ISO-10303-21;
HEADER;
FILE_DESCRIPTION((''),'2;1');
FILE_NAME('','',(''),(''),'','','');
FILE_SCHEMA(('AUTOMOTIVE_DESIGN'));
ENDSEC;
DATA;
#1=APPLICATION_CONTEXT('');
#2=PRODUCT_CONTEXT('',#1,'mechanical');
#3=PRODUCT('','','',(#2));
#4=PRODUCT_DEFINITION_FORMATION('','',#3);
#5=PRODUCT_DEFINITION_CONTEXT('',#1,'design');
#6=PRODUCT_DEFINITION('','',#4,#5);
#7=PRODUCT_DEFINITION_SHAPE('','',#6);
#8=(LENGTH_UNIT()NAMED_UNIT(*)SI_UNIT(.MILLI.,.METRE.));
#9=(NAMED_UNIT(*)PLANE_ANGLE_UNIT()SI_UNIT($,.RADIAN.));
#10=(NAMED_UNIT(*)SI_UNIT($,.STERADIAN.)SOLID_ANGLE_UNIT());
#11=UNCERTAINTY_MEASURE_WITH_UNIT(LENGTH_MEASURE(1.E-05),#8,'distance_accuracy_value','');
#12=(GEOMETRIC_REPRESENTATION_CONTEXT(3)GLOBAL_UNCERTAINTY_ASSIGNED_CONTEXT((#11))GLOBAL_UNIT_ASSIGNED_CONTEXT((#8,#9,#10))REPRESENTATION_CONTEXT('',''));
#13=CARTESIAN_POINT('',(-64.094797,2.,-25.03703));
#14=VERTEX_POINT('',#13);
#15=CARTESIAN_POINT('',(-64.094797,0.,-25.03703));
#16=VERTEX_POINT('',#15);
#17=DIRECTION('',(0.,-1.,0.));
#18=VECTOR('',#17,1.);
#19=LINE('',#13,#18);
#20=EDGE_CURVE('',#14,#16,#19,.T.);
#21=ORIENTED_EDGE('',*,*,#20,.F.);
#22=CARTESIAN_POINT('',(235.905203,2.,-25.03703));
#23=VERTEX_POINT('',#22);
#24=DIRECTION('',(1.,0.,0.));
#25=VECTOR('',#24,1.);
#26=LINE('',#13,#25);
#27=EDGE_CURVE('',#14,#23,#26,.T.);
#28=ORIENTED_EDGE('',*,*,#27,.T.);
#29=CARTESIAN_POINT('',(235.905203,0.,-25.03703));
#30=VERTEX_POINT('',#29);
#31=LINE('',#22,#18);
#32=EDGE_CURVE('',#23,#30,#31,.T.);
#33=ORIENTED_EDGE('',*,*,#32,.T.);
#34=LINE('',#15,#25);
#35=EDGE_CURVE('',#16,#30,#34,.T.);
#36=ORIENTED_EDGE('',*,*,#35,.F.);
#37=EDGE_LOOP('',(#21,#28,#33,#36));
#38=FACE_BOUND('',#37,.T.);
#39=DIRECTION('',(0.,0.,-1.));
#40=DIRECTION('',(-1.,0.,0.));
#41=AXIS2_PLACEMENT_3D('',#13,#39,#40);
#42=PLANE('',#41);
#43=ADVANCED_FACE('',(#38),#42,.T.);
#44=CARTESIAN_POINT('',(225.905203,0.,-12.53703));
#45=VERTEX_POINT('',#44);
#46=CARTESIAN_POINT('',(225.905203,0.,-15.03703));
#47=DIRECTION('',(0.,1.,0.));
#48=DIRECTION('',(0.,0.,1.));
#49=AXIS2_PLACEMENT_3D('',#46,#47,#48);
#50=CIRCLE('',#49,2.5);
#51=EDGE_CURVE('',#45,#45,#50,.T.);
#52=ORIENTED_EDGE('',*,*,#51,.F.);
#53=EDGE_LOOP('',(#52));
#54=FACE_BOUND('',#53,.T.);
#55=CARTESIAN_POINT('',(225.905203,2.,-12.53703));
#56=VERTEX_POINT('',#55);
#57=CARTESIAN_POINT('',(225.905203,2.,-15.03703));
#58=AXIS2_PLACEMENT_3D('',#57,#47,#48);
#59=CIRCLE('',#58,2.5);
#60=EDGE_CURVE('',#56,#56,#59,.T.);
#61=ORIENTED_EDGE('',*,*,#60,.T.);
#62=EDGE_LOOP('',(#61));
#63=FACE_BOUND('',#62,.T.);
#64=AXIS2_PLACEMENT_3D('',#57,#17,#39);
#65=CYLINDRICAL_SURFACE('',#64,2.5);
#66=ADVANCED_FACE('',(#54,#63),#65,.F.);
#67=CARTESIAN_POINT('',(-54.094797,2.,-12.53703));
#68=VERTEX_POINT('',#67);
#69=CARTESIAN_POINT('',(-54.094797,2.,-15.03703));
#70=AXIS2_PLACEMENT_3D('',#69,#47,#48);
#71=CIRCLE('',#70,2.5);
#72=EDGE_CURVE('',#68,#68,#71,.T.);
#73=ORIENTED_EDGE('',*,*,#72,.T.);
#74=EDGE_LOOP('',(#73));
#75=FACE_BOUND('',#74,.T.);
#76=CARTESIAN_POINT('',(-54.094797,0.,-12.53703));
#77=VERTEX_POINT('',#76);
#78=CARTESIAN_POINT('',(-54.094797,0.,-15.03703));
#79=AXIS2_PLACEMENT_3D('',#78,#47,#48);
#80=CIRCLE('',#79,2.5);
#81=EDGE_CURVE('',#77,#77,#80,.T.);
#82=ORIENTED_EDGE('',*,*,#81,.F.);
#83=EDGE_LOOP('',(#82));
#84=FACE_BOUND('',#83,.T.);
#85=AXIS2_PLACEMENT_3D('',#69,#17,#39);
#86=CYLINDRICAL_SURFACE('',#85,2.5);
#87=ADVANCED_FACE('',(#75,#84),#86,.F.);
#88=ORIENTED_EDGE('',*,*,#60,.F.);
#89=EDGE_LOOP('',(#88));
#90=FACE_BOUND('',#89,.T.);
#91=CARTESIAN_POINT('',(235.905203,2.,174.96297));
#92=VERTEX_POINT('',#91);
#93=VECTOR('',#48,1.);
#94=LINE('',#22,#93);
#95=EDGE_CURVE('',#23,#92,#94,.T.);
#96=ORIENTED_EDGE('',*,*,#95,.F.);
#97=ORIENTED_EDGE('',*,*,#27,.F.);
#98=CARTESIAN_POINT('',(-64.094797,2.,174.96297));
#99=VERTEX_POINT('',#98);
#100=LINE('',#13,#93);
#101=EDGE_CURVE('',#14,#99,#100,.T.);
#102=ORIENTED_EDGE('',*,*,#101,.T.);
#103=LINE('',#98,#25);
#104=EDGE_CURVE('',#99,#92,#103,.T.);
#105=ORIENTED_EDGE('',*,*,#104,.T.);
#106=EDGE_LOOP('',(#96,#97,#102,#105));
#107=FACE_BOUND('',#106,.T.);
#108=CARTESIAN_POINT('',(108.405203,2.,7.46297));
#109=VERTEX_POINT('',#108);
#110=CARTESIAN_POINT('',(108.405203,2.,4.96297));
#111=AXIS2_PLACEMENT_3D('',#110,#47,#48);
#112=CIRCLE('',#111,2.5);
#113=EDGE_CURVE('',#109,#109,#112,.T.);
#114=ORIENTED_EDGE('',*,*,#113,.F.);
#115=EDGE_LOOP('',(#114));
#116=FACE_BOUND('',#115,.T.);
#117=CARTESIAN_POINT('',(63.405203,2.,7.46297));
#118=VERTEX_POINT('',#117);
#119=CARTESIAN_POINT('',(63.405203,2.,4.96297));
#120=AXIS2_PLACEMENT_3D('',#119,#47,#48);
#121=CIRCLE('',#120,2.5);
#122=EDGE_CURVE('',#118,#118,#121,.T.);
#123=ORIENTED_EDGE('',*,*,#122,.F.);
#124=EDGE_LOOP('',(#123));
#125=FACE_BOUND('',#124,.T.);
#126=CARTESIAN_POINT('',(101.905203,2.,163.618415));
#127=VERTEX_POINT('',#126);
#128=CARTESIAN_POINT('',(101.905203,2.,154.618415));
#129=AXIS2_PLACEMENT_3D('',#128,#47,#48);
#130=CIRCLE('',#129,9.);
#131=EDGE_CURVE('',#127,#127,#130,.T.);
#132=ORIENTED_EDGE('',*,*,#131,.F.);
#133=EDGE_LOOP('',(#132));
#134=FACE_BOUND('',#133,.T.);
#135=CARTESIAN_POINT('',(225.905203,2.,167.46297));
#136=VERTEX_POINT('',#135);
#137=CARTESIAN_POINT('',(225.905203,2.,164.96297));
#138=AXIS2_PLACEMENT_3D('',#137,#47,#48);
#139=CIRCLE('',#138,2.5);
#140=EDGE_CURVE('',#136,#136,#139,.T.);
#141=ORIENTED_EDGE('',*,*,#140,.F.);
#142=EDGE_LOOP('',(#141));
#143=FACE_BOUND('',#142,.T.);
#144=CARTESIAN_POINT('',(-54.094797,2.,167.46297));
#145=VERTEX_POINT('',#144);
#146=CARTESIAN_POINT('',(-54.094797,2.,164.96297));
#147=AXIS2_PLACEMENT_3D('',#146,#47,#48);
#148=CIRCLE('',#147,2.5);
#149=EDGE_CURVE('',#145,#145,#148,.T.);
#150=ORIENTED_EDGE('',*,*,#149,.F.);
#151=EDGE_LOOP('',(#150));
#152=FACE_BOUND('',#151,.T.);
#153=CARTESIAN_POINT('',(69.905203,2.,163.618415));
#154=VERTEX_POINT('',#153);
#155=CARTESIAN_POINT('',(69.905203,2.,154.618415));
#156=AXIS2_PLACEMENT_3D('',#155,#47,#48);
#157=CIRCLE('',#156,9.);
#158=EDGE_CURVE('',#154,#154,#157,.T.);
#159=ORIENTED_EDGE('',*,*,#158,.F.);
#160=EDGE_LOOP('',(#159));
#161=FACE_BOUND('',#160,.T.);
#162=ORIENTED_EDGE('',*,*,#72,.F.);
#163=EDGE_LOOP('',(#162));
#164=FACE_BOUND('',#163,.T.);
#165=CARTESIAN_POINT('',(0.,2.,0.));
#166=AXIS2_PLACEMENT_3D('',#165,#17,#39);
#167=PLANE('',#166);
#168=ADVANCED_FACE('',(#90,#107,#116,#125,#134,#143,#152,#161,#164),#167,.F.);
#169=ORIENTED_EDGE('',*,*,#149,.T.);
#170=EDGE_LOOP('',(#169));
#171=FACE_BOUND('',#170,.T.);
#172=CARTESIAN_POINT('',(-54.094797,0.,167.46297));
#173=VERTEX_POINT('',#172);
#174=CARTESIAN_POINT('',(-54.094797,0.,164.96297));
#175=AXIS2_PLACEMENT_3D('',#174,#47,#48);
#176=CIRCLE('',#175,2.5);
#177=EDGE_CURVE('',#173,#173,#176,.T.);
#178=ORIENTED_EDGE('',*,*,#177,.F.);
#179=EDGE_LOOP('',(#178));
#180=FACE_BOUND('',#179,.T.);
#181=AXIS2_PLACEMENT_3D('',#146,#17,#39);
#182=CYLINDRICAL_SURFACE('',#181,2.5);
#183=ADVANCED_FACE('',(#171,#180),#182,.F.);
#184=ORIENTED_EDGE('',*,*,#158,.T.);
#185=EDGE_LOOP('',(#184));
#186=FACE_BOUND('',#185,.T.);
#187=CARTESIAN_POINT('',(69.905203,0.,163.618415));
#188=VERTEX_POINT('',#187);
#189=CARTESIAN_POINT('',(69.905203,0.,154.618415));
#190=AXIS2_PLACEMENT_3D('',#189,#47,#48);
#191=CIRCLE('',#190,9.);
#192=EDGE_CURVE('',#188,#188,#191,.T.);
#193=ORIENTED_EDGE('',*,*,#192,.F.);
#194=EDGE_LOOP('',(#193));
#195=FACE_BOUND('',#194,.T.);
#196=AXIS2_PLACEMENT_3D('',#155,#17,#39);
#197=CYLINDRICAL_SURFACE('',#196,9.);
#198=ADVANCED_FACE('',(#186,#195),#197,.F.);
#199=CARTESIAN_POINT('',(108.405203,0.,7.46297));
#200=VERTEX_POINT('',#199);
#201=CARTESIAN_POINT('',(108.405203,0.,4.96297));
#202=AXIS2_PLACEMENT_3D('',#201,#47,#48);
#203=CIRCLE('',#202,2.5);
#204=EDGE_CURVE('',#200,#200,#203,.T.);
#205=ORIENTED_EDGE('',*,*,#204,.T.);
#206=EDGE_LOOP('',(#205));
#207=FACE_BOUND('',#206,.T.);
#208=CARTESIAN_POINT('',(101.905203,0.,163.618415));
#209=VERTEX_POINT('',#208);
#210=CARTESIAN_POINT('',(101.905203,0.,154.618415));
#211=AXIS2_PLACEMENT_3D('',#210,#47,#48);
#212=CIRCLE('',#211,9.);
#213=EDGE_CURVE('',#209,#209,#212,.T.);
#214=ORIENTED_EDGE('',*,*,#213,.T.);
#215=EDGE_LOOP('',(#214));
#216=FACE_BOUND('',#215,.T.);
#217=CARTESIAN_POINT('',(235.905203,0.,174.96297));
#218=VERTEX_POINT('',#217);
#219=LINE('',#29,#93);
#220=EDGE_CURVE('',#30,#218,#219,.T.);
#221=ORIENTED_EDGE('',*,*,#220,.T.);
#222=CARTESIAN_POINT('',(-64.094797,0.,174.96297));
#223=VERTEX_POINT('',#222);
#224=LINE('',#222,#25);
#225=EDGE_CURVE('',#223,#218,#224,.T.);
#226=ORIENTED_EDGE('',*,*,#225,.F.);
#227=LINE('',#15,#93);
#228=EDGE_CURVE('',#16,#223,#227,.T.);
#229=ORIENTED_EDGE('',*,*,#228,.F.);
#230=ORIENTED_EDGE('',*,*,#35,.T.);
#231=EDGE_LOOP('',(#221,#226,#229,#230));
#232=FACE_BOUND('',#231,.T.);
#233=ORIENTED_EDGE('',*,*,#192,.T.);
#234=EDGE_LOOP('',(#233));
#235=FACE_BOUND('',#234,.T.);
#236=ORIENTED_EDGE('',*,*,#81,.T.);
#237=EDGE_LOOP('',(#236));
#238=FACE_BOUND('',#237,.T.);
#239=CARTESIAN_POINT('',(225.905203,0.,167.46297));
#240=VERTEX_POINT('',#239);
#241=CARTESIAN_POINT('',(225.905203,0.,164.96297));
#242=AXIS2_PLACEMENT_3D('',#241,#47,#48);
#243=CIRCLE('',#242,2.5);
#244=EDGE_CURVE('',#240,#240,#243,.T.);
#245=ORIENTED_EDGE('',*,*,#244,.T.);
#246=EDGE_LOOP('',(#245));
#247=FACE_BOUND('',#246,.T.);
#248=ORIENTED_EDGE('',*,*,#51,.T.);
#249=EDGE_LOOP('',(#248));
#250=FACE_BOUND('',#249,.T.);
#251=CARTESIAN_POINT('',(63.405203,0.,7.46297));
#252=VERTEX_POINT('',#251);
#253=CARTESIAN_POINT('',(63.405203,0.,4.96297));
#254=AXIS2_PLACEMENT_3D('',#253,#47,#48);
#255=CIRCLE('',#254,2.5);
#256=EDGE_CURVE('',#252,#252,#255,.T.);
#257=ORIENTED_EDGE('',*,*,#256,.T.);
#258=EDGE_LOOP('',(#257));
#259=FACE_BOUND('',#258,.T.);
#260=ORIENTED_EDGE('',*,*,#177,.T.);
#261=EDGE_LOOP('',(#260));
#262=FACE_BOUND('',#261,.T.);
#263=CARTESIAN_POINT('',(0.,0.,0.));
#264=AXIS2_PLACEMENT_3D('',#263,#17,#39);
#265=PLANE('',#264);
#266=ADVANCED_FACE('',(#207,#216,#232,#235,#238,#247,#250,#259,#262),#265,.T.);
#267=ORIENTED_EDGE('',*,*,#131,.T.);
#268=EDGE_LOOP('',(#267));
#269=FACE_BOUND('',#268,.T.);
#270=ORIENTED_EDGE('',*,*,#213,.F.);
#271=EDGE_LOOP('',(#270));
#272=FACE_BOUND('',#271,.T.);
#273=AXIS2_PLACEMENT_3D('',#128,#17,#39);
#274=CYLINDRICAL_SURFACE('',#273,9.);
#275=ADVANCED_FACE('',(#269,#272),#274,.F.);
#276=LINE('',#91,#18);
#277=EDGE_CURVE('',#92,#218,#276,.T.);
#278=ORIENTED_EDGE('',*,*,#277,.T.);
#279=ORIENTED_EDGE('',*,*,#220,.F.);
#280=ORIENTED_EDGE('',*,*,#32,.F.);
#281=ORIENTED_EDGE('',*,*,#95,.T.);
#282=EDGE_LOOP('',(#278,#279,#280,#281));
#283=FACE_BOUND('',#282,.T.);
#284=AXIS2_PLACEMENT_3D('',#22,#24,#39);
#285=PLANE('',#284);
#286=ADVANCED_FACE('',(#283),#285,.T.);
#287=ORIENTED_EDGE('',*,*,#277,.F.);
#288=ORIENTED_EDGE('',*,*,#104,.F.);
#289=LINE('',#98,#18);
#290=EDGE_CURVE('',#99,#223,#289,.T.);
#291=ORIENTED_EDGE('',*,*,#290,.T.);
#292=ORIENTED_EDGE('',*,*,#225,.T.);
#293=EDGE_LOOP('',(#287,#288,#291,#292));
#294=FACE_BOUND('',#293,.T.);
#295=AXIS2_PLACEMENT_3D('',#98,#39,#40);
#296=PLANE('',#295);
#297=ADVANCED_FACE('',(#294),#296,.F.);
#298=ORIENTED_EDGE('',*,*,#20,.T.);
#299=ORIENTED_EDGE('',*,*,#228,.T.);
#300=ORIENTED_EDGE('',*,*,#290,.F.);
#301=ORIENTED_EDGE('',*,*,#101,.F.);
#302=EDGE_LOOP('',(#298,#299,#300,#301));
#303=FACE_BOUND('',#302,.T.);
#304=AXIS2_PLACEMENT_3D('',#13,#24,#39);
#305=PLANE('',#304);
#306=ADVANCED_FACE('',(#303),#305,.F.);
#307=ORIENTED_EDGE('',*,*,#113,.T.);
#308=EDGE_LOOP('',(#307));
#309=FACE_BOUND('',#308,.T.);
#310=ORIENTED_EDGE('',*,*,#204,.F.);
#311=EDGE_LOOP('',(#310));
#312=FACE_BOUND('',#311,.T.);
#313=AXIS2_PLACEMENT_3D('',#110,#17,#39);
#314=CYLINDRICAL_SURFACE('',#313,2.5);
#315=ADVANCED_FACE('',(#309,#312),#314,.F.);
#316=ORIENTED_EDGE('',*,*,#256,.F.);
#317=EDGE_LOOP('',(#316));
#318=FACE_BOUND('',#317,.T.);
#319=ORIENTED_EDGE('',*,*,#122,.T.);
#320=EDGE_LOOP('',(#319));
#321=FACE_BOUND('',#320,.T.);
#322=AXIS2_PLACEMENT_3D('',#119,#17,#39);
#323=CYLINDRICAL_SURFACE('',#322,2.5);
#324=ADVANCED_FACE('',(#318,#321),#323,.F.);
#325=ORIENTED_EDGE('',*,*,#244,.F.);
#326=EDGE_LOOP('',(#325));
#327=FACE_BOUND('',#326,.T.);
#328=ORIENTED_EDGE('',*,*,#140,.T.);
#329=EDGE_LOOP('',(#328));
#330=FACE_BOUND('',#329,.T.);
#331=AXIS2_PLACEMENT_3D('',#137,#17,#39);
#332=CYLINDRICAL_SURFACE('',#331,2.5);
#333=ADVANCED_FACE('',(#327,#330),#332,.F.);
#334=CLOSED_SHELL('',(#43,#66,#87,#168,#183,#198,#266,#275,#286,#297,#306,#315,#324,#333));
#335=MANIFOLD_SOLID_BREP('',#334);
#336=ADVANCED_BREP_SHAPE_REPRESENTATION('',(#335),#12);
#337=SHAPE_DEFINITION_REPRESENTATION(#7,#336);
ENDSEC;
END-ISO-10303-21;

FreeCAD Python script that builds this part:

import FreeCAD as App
import Part
import Sketcher

V = App.Vector


def add_polygon(sketch, points):
    """Adds a closed chain of lines whose ends are joined by coincident constraints."""
    first, n = sketch.GeometryCount, len(points)
    for a, b in zip(points, points[1:] + points[:1]):
        sketch.addGeometry(Part.LineSegment(App.Vector(*a, 0), App.Vector(*b, 0)), False)
    for i in range(n):
        sketch.addConstraint(Sketcher.Constraint("Coincident", first + i, 2, first + (i + 1) % n, 1))

doc = App.newDocument("Part")
body = doc.addObject("PartDesign::Body", "Body")

sketch1 = doc.addObject("Sketcher::SketchObject", "Sketch")
body.addObject(sketch1)
sketch1.AttachmentSupport = (doc.XZ_Plane, [""])
sketch1.MapMode = "FlatFace"
add_polygon(sketch1, [(-64.1, -25), (-64.1, 175), (235.9, 175), (235.9, -25)])
sketch1.addGeometry(Part.Circle(V(-54.1, 165, 0), V(0, 0, 1), 2.5), False)
sketch1.addGeometry(Part.Circle(V(69.9, 154.6, 0), V(0, 0, 1), 9), False)
sketch1.addGeometry(Part.Circle(V(101.9, 154.6, 0), V(0, 0, 1), 9), False)
sketch1.addGeometry(Part.Circle(V(225.9, 165, 0), V(0, 0, 1), 2.5), False)
sketch1.addGeometry(Part.Circle(V(-54.1, -15, 0), V(0, 0, 1), 2.5), False)
sketch1.addGeometry(Part.Circle(V(63.4, 5, 0), V(0, 0, 1), 2.5), False)
sketch1.addGeometry(Part.Circle(V(108.4, 5, 0), V(0, 0, 1), 2.5), False)
sketch1.addGeometry(Part.Circle(V(225.9, -15, 0), V(0, 0, 1), 2.5), False)
sketch1.addConstraint([
    Sketcher.Constraint("Vertical", 0),
    Sketcher.Constraint("Horizontal", 1),
    Sketcher.Constraint("Vertical", 2),
    Sketcher.Constraint("Horizontal", 3),
    Sketcher.Constraint("Equal", 5, 6),
    Sketcher.Constraint("Equal", 4, 7),
    Sketcher.Constraint("Equal", 7, 8),
    Sketcher.Constraint("Equal", 8, 9),
    Sketcher.Constraint("Equal", 9, 10),
    Sketcher.Constraint("Equal", 10, 11),
    Sketcher.Constraint("Horizontal", 5, 3, 6, 3),
    Sketcher.Constraint("Horizontal", 4, 3, 7, 3),
    Sketcher.Constraint("Horizontal", 9, 3, 10, 3),
    Sketcher.Constraint("Horizontal", 8, 3, 11, 3),
    Sketcher.Constraint("Vertical", 4, 3, 8, 3),
    Sketcher.Constraint("Vertical", 7, 3, 11, 3),
    Sketcher.Constraint("Diameter", 4, 5.0),
    Sketcher.Constraint("Diameter", 5, 18.0),
    Sketcher.Constraint("DistanceX", 1, 1, 1, 2, 300.0),
    Sketcher.Constraint("DistanceY", 0, 1, 0, 2, 200.0),
    Sketcher.Constraint("DistanceX", 4, 3, 5, 3, 124.0),
    Sketcher.Constraint("DistanceX", 5, 3, 6, 3, 32.0),
    Sketcher.Constraint("DistanceX", 6, 3, 7, 3, 124.0),
    Sketcher.Constraint("DistanceY", 8, 3, 4, 3, 180.0),
    Sketcher.Constraint("DistanceY", 8, 3, 9, 3, 20.0),
    Sketcher.Constraint("DistanceX", 9, 3, 10, 3, 45.0),
    Sketcher.Constraint("DistanceX", 0, 2, 4, 3, 10.0),
    Sketcher.Constraint("DistanceY", 4, 3, 0, 2, 10.0),
    Sketcher.Constraint("DistanceX", 8, 3, 9, 3, 117.5),
    Sketcher.Constraint("DistanceY", -1, 1, 4, 3, 164.96297),
    Sketcher.Constraint("DistanceX", 4, 3, -1, 1, 54.094797),
    Sketcher.Constraint("DistanceY", -1, 1, 5, 3, 154.618415),
])
pad1 = doc.addObject("PartDesign::Pad", "Pad")
body.addObject(pad1)
pad1.Profile = sketch1
pad1.Length = 2
pad1.Reversed = True

doc.recompute()
